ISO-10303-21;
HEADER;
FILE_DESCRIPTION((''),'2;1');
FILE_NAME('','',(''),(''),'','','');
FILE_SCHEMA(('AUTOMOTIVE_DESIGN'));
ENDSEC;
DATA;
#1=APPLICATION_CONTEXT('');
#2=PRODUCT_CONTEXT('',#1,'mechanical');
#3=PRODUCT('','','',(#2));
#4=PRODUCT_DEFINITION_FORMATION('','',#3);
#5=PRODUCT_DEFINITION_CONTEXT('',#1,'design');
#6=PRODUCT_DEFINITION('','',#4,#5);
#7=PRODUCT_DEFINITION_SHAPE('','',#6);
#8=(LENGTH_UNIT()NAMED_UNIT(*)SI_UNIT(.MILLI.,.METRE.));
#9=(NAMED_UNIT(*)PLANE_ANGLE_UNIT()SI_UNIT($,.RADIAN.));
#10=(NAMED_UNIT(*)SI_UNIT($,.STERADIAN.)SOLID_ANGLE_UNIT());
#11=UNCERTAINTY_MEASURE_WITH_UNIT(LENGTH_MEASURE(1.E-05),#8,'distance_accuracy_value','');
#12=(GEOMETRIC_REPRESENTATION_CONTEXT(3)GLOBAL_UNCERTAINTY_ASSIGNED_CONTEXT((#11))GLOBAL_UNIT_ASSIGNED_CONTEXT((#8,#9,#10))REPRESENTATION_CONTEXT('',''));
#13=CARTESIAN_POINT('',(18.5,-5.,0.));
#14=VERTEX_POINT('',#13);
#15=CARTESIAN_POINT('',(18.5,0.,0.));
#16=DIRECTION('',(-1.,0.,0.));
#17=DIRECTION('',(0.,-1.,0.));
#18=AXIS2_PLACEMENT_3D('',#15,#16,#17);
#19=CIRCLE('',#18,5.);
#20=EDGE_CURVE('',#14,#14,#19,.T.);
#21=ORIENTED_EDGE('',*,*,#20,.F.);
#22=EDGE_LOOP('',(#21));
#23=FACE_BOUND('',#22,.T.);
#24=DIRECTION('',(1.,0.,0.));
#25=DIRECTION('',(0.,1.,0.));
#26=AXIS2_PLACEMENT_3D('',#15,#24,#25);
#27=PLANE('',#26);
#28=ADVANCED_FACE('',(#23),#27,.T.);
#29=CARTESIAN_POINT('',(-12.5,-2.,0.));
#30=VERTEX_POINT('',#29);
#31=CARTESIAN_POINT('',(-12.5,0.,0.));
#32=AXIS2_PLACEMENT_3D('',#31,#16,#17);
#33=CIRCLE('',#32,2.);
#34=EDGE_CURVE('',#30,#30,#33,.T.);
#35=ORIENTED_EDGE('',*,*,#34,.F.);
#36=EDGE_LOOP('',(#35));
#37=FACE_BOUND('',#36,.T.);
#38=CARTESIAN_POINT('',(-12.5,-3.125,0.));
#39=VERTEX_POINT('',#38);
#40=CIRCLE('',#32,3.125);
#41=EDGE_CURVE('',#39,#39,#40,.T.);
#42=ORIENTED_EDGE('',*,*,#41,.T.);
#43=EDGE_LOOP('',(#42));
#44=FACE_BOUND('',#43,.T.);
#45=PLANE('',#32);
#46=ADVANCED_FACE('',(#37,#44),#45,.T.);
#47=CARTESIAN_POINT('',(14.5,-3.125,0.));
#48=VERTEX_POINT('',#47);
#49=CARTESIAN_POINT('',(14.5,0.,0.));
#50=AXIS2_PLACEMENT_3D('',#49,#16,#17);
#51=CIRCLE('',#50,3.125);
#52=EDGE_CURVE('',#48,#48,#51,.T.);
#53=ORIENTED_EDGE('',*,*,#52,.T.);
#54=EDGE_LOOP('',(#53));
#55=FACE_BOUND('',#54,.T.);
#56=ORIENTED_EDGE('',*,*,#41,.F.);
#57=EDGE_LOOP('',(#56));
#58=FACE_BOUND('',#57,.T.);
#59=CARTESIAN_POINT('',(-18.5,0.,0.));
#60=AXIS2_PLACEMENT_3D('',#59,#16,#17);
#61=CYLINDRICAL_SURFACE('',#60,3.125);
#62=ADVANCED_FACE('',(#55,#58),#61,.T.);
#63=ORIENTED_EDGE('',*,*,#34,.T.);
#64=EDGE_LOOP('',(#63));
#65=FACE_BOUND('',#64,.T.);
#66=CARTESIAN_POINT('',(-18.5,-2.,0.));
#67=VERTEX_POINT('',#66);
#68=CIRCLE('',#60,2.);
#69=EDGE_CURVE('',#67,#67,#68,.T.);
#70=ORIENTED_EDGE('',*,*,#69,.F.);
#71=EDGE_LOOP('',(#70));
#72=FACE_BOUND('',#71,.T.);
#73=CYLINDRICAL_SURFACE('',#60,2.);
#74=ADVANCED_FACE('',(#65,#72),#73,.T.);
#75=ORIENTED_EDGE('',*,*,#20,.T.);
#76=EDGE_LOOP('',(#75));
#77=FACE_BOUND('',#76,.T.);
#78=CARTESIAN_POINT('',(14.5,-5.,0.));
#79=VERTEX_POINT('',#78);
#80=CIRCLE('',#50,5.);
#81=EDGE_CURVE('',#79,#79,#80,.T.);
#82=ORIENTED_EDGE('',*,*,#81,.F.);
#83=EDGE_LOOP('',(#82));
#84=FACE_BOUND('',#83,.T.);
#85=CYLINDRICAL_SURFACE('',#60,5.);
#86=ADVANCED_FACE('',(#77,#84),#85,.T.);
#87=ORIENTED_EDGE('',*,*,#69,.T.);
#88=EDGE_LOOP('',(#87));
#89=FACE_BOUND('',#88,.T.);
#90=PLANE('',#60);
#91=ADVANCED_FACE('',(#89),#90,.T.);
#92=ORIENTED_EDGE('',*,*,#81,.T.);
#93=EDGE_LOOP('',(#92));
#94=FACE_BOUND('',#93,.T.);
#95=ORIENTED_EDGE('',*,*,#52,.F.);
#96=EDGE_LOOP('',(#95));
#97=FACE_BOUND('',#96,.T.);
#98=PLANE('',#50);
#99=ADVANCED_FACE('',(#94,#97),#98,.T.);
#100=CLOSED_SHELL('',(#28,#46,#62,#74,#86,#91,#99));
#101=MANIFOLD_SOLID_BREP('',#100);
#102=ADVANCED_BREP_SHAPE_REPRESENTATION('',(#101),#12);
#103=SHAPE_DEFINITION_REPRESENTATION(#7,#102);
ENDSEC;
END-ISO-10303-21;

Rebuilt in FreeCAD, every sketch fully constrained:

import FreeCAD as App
import Part
import Sketcher

V = App.Vector

doc = App.newDocument("Part")
body = doc.addObject("PartDesign::Body", "Body")

# Sketch on XY plane
sketch1 = body.newObject("Sketcher::SketchObject", "Sketch")
sketch1.AttachmentSupport = (doc.getObject("XY_Plane"), [""])
sketch1.MapMode = "FlatFace"
sketch1.addGeometry([
    Part.LineSegment(V(14.5, 3.125, 0), V(-12.5, 3.125, 0)),  # 0
    Part.LineSegment(V(-12.5, 3.125, 0), V(-12.5, 2, 0)),  # 1
    Part.LineSegment(V(-12.5, 2, 0), V(-18.5, 2, 0)),  # 2
    Part.LineSegment(V(-18.5, 2, 0), V(-18.5, 0, 0)),  # 3
    Part.LineSegment(V(-18.5, 0, 0), V(18.5, 0, 0)),  # 4
    Part.LineSegment(V(18.5, 0, 0), V(18.5, 5, 0)),  # 5
    Part.LineSegment(V(18.5, 5, 0), V(14.5, 5, 0)),  # 6
    Part.LineSegment(V(14.5, 5, 0), V(14.5, 3.125, 0)),  # 7
], False)
sketch1.addConstraint([
    Sketcher.Constraint("Coincident", 0, 2, 1, 1),
    Sketcher.Constraint("Coincident", 1, 2, 2, 1),
    Sketcher.Constraint("Coincident", 2, 2, 3, 1),
    Sketcher.Constraint("Coincident", 3, 2, 4, 1),
    Sketcher.Constraint("Coincident", 4, 2, 5, 1),
    Sketcher.Constraint("Coincident", 5, 2, 6, 1),
    Sketcher.Constraint("Coincident", 6, 2, 7, 1),
    Sketcher.Constraint("Coincident", 7, 2, 0, 1),
    Sketcher.Constraint("Horizontal", 0),
    Sketcher.Constraint("Vertical", 1),
    Sketcher.Constraint("Horizontal", 2),
    Sketcher.Constraint("Vertical", 3),
    Sketcher.Constraint("Horizontal", 4),
    Sketcher.Constraint("Vertical", 5),
    Sketcher.Constraint("Horizontal", 6),
    Sketcher.Constraint("Vertical", 7),
    Sketcher.Constraint("Symmetric", 3, 2, 4, 2, -1, 1),
    Sketcher.Constraint("DistanceX", 0, 2, 0, 1, 27.0),
    Sketcher.Constraint("DistanceX", 2, 2, 2, 1, 6.0),
    Sketcher.Constraint("DistanceX", 4, 1, 4, 2, 37.0),
    Sketcher.Constraint("DistanceY", 3, 2, 3, 1, 2.0),
    Sketcher.Constraint("DistanceY", 5, 1, 5, 2, 5.0),
    Sketcher.Constraint("DistanceY", 1, 2, 1, 1, 1.125),
])
revolution = body.newObject("PartDesign::Revolution", "Revolution")
revolution.Profile = sketch1
revolution.ReferenceAxis = (sketch1, ["H_Axis"])
revolution.Angle = 360

doc.recompute()
